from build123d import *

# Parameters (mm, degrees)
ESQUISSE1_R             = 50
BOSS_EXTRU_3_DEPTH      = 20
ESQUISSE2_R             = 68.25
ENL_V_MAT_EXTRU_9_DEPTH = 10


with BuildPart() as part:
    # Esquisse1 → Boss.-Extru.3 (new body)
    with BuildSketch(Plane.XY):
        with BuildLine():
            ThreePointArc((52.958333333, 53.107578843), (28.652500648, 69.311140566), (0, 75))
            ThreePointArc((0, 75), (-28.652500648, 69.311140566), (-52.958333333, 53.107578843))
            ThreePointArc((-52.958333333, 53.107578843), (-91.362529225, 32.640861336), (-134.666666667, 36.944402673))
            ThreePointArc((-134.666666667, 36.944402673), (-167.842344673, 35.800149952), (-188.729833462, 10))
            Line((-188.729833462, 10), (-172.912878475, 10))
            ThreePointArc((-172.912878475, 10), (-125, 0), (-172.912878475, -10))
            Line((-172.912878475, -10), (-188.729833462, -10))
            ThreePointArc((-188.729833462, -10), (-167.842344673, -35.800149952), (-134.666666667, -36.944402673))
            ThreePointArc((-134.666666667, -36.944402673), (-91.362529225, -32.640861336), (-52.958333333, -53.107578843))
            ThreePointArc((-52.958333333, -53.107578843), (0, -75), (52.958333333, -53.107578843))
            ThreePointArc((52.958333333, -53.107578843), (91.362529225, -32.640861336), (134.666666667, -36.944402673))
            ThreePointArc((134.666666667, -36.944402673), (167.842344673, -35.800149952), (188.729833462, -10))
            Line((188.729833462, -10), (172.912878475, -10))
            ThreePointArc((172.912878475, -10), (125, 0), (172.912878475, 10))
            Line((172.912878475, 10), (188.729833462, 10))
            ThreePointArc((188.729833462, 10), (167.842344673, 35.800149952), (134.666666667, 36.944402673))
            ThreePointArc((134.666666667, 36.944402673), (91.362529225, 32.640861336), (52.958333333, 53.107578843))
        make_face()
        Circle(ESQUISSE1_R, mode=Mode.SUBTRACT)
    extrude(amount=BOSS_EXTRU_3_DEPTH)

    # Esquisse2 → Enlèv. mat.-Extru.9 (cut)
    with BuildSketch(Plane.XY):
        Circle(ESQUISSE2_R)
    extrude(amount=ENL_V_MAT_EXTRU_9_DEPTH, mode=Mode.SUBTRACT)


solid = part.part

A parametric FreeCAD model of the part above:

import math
import FreeCAD as App
import Part
import Sketcher

V = App.Vector

doc = App.newDocument("Part")
body = doc.addObject("PartDesign::Body", "Body")

# Sketch on XY plane
sketch1 = doc.addObject("Sketcher::SketchObject", "Sketch")
body.addObject(sketch1)
sketch1.AttachmentSupport = (doc.XY_Plane, [""])
sketch1.MapMode = "FlatFace"
sketch1.addGeometry([
    Part.ArcOfCircle(Part.Circle(V(0, 0, 0), V(0, 0, 1), 75), math.radians(45.080621), math.radians(90)),  # 0
    Part.ArcOfCircle(Part.Circle(V(0, 0, 0), V(0, 0, 1), 75), math.radians(90), math.radians(134.919379)),  # 1
    Part.ArcOfCircle(Part.Circle(V(-105.916667, 106.215158, 0), V(0, 0, 1), 75), math.radians(-112.54031), math.radians(-45.080621)),  # 2
    Part.ArcOfCircle(Part.Circle(V(-150, 0, 0), V(0, 0, 1), 40), math.radians(67.45969), math.radians(165.522488)),  # 3
    Part.LineSegment(V(-188.729833, 10, 0), V(-172.912878, 10, 0)),  # 4
    Part.ArcOfCircle(Part.Circle(V(-150, 0, 0), V(0, 0, 1), 25), math.radians(-156.421822), math.radians(156.421822)),  # 5
    Part.LineSegment(V(-172.912878, -10, 0), V(-188.729833, -10, 0)),  # 6
    Part.ArcOfCircle(Part.Circle(V(-150, 0, 0), V(0, 0, 1), 40), math.radians(-165.522488), math.radians(-67.45969)),  # 7
    Part.ArcOfCircle(Part.Circle(V(-105.916667, -106.215158, 0), V(0, 0, 1), 75), math.radians(45.080621), math.radians(112.54031)),  # 8
    Part.ArcOfCircle(Part.Circle(V(0, 0, 0), V(0, 0, 1), 75), math.radians(-134.919379), math.radians(-45.080621)),  # 9
    Part.ArcOfCircle(Part.Circle(V(105.916667, -106.215158, 0), V(0, 0, 1), 75), math.radians(67.45969), math.radians(134.919379)),  # 10
    Part.ArcOfCircle(Part.Circle(V(150, 0, 0), V(0, 0, 1), 40), math.radians(-112.54031), math.radians(-14.477512)),  # 11
    Part.LineSegment(V(188.729833, -10, 0), V(172.912878, -10, 0)),  # 12
    Part.ArcOfCircle(Part.Circle(V(150, 0, 0), V(0, 0, 1), 25), math.radians(23.578178), math.radians(336.421822)),  # 13
    Part.LineSegment(V(172.912878, 10, 0), V(188.729833, 10, 0)),  # 14
    Part.ArcOfCircle(Part.Circle(V(150, 0, 0), V(0, 0, 1), 40), math.radians(14.477512), math.radians(112.54031)),  # 15
    Part.ArcOfCircle(Part.Circle(V(105.916667, 106.215158, 0), V(0, 0, 1), 75), math.radians(-134.919379), math.radians(-67.45969)),  # 16
    Part.Circle(V(0, 0, 0), V(0, 0, 1), 50),  # 17
], False)
sketch1.addConstraint([
    Sketcher.Constraint("Tangent", 0, 2, 1, 1),
    Sketcher.Constraint("Tangent", 1, 2, 2, 2),
    Sketcher.Constraint("Tangent", 2, 1, 3, 1),
    Sketcher.Constraint("Coincident", 3, 2, 4, 1),
    Sketcher.Constraint("Coincident", 4, 2, 5, 2),
    Sketcher.Constraint("Coincident", 5, 1, 6, 1),
    Sketcher.Constraint("Coincident", 6, 2, 7, 1),
    Sketcher.Constraint("Tangent", 7, 2, 8, 2),
    Sketcher.Constraint("Tangent", 8, 1, 9, 1),
    Sketcher.Constraint("Tangent", 9, 2, 10, 2),
    Sketcher.Constraint("Tangent", 10, 1, 11, 1),
    Sketcher.Constraint("Coincident", 11, 2, 12, 1),
    Sketcher.Constraint("Coincident", 12, 2, 13, 2),
    Sketcher.Constraint("Coincident", 13, 1, 14, 1),
    Sketcher.Constraint("Coincident", 14, 2, 15, 1),
    Sketcher.Constraint("Tangent", 15, 2, 16, 2),
    Sketcher.Constraint("Tangent", 16, 1, 0, 1),
    Sketcher.Constraint("Horizontal", 4),
    Sketcher.Constraint("Horizontal", 6),
    Sketcher.Constraint("Horizontal", 12),
    Sketcher.Constraint("Horizontal", 14),
    Sketcher.Constraint("Coincident", 0, 3, -1, 1),
    Sketcher.Constraint("Coincident", 9, 3, -1, 1),
    Sketcher.Constraint("Coincident", 17, 3, -1, 1),
    Sketcher.Constraint("Coincident", 5, 3, 3, 3),
    Sketcher.Constraint("Coincident", 7, 3, 3, 3),
    Sketcher.Constraint("Coincident", 13, 3, 11, 3),
    Sketcher.Constraint("Coincident", 15, 3, 11, 3),
    Sketcher.Constraint("Equal", 0, 1),
    Sketcher.Constraint("Equal", 1, 2),
    Sketcher.Constraint("Equal", 3, 7),
    Sketcher.Constraint("Equal", 2, 8),
    Sketcher.Constraint("Equal", 8, 9),
    Sketcher.Constraint("Equal", 9, 10),
    Sketcher.Constraint("Equal", 7, 11),
    Sketcher.Constraint("Equal", 5, 13),
    Sketcher.Constraint("Equal", 11, 15),
    Sketcher.Constraint("Equal", 10, 16),
    Sketcher.Constraint("Symmetric", 3, 3, 11, 3, -1, 1),
    Sketcher.Constraint("Symmetric", 6, 2, 11, 2, -2),
    Sketcher.Constraint("PointOnObject", 0, 2, -2),
    Sketcher.Constraint("Horizontal", 4, 2, 13, 1),
    Sketcher.Constraint("Vertical", 4, 2, 5, 1),
    Sketcher.Constraint("Diameter", 17, 100.0),
    Sketcher.Constraint("Radius", 0, 75.0),
    Sketcher.Constraint("Radius", 3, 40.0),
    Sketcher.Constraint("Radius", 5, 25.0),
    Sketcher.Constraint("DistanceX", 3, 3, -1, 1, 150.0),
    Sketcher.Constraint("DistanceY", -1, 1, 3, 2, 10.0),
])
pad1 = doc.addObject("PartDesign::Pad", "Pad")
body.addObject(pad1)
pad1.Profile = sketch1
pad1.Length = 20

# Sketch on XY plane
sketch2 = doc.addObject("Sketcher::SketchObject", "Sketch001")
body.addObject(sketch2)
sketch2.AttachmentSupport = (doc.XY_Plane, [""])
sketch2.MapMode = "FlatFace"
sketch2.addGeometry(Part.Circle(V(0, 0, 0), V(0, 0, 1), 68.25), False)
sketch2.addConstraint([
    Sketcher.Constraint("Coincident", 0, 3, -1, 1),
    Sketcher.Constraint("Diameter", 0, 136.5),
])
pocket1 = doc.addObject("PartDesign::Pocket", "Pocket")
body.addObject(pocket1)
pocket1.Profile = sketch2
pocket1.Length = 10
pocket1.Reversed = True

doc.recompute()
